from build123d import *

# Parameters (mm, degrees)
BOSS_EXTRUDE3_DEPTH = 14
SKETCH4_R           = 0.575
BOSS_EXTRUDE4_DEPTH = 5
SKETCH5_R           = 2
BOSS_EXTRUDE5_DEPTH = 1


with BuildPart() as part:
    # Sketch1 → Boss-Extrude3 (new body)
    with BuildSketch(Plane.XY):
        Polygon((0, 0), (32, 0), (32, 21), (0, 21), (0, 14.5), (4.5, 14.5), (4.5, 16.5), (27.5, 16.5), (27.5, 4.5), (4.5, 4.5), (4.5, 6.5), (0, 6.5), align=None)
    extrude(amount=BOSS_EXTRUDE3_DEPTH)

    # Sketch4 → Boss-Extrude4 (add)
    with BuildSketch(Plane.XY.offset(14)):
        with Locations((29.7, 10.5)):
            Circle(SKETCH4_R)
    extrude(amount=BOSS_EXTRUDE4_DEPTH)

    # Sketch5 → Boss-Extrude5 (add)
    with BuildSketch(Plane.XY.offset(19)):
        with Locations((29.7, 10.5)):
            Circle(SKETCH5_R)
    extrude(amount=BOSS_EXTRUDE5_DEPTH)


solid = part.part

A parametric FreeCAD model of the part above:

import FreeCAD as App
import Part
import Sketcher

V = App.Vector


def add_polygon(sketch, points):
    """Adds a closed chain of lines whose ends are joined by coincident constraints."""
    first, n = sketch.GeometryCount, len(points)
    for a, b in zip(points, points[1:] + points[:1]):
        sketch.addGeometry(Part.LineSegment(App.Vector(*a, 0), App.Vector(*b, 0)), False)
    for i in range(n):
        sketch.addConstraint(Sketcher.Constraint("Coincident", first + i, 2, first + (i + 1) % n, 1))

doc = App.newDocument("Part")
params = doc.addObject("Spreadsheet::Sheet", "Params")
for row, (alias, value) in enumerate([
    ("sketch1_width", "32 mm"),
    ("sketch1_width2", "23 mm"),
    ("sketch1_height", "21 mm"),
    ("sketch1_height2", "2 mm"),
    ("sketch1_height3", "12 mm"),
    ("pad1_length", "14 mm"),
    ("sketch2_diameter", "1.15 mm"),
    ("pad2_length", "5 mm"),
    ("sketch3_diameter", "4 mm"),
    ("pad3_length", "1 mm"),
], start=1):
    params.set(f"A{row}", alias)
    params.set(f"B{row}", "=" + value)
    params.setAlias(f"B{row}", alias)

body = doc.addObject("PartDesign::Body", "Body")

# Sketch on XY plane
sketch1 = body.newObject("Sketcher::SketchObject", "Sketch")
sketch1.AttachmentSupport = (doc.getObject("XY_Plane"), [""])
sketch1.MapMode = "FlatFace"
add_polygon(sketch1, [(0, 0), (32, 0), (32, 21), (0, 21), (0, 14.5), (4.5, 14.5), (4.5, 16.5), (27.5, 16.5), (27.5, 4.5), (4.5, 4.5), (4.5, 6.5), (0, 6.5)])  # lines 0-11
sketch1.addConstraint([
    Sketcher.Constraint("Horizontal", 0),
    Sketcher.Constraint("Vertical", 1),
    Sketcher.Constraint("Horizontal", 2),
    Sketcher.Constraint("Vertical", 3),
    Sketcher.Constraint("Horizontal", 4),
    Sketcher.Constraint("Vertical", 5),
    Sketcher.Constraint("Horizontal", 6),
    Sketcher.Constraint("Vertical", 7),
    Sketcher.Constraint("Horizontal", 8),
    Sketcher.Constraint("Vertical", 9),
    Sketcher.Constraint("Horizontal", 10),
    Sketcher.Constraint("Vertical", 11),
    Sketcher.Constraint("Coincident", 11, 2, -1, 1),
    Sketcher.Constraint("PointOnObject", 2, 2, -2),
    Sketcher.Constraint("Vertical", 5, 2, 8, 2),
    Sketcher.Constraint("Equal", 5, 9),
    Sketcher.Constraint("Equal", 3, 11),
    Sketcher.Constraint("DistanceX", 0, 1, 0, 2, 32.0),
    Sketcher.Constraint("DistanceX", 6, 1, 6, 2, 23.0),
    Sketcher.Constraint("DistanceY", 1, 1, 1, 2, 21.0),
    Sketcher.Constraint("DistanceY", 5, 1, 5, 2, 2.0),
    Sketcher.Constraint("DistanceY", 7, 2, 7, 1, 12.0),
    Sketcher.Constraint("DistanceX", 4, 1, 4, 2, 4.5),
])
sketch1.setExpression("Constraints[29]", "Params.sketch1_width")
sketch1.setExpression("Constraints[30]", "Params.sketch1_width2")
sketch1.setExpression("Constraints[31]", "Params.sketch1_height")
sketch1.setExpression("Constraints[32]", "Params.sketch1_height2")
sketch1.setExpression("Constraints[33]", "Params.sketch1_height3")
pad1 = body.newObject("PartDesign::Pad", "Pad")
pad1.Profile = sketch1
pad1.setExpression("Length", "Params.pad1_length")

# Sketch on XY plane
sketch2 = body.newObject("Sketcher::SketchObject", "Sketch001")
sketch2.AttachmentSupport = (doc.getObject("XY_Plane"), [""])
sketch2.MapMode = "FlatFace"
sketch2.AttachmentOffset = App.Placement(V(0, 0, 14), App.Rotation())
sketch2.addGeometry(Part.Circle(V(29.7, 10.5, 0), V(0, 0, 1), 0.575), False)
sketch2.addConstraint([
    Sketcher.Constraint("Diameter", 0, 1.15),
    Sketcher.Constraint("DistanceX", -1, 1, 0, 3, 29.7),
    Sketcher.Constraint("DistanceY", -1, 1, 0, 3, 10.5),
])
sketch2.setExpression("Constraints[0]", "Params.sketch2_diameter")
pad2 = body.newObject("PartDesign::Pad", "Pad001")
pad2.Profile = sketch2
pad2.setExpression("Length", "Params.pad2_length")

# Sketch on XY plane
sketch3 = body.newObject("Sketcher::SketchObject", "Sketch002")
sketch3.AttachmentSupport = (doc.getObject("XY_Plane"), [""])
sketch3.MapMode = "FlatFace"
sketch3.AttachmentOffset = App.Placement(V(0, 0, 19), App.Rotation())
sketch3.addGeometry(Part.Circle(V(29.7, 10.5, 0), V(0, 0, 1), 2), False)
sketch3.addConstraint([
    Sketcher.Constraint("Diameter", 0, 4.0),
    Sketcher.Constraint("DistanceX", -1, 1, 0, 3, 29.7),
    Sketcher.Constraint("DistanceY", -1, 1, 0, 3, 10.5),
])
sketch3.setExpression("Constraints[0]", "Params.sketch3_diameter")
pad3 = body.newObject("PartDesign::Pad", "Pad002")
pad3.Profile = sketch3
pad3.setExpression("Length", "Params.pad3_length")

doc.recompute()
